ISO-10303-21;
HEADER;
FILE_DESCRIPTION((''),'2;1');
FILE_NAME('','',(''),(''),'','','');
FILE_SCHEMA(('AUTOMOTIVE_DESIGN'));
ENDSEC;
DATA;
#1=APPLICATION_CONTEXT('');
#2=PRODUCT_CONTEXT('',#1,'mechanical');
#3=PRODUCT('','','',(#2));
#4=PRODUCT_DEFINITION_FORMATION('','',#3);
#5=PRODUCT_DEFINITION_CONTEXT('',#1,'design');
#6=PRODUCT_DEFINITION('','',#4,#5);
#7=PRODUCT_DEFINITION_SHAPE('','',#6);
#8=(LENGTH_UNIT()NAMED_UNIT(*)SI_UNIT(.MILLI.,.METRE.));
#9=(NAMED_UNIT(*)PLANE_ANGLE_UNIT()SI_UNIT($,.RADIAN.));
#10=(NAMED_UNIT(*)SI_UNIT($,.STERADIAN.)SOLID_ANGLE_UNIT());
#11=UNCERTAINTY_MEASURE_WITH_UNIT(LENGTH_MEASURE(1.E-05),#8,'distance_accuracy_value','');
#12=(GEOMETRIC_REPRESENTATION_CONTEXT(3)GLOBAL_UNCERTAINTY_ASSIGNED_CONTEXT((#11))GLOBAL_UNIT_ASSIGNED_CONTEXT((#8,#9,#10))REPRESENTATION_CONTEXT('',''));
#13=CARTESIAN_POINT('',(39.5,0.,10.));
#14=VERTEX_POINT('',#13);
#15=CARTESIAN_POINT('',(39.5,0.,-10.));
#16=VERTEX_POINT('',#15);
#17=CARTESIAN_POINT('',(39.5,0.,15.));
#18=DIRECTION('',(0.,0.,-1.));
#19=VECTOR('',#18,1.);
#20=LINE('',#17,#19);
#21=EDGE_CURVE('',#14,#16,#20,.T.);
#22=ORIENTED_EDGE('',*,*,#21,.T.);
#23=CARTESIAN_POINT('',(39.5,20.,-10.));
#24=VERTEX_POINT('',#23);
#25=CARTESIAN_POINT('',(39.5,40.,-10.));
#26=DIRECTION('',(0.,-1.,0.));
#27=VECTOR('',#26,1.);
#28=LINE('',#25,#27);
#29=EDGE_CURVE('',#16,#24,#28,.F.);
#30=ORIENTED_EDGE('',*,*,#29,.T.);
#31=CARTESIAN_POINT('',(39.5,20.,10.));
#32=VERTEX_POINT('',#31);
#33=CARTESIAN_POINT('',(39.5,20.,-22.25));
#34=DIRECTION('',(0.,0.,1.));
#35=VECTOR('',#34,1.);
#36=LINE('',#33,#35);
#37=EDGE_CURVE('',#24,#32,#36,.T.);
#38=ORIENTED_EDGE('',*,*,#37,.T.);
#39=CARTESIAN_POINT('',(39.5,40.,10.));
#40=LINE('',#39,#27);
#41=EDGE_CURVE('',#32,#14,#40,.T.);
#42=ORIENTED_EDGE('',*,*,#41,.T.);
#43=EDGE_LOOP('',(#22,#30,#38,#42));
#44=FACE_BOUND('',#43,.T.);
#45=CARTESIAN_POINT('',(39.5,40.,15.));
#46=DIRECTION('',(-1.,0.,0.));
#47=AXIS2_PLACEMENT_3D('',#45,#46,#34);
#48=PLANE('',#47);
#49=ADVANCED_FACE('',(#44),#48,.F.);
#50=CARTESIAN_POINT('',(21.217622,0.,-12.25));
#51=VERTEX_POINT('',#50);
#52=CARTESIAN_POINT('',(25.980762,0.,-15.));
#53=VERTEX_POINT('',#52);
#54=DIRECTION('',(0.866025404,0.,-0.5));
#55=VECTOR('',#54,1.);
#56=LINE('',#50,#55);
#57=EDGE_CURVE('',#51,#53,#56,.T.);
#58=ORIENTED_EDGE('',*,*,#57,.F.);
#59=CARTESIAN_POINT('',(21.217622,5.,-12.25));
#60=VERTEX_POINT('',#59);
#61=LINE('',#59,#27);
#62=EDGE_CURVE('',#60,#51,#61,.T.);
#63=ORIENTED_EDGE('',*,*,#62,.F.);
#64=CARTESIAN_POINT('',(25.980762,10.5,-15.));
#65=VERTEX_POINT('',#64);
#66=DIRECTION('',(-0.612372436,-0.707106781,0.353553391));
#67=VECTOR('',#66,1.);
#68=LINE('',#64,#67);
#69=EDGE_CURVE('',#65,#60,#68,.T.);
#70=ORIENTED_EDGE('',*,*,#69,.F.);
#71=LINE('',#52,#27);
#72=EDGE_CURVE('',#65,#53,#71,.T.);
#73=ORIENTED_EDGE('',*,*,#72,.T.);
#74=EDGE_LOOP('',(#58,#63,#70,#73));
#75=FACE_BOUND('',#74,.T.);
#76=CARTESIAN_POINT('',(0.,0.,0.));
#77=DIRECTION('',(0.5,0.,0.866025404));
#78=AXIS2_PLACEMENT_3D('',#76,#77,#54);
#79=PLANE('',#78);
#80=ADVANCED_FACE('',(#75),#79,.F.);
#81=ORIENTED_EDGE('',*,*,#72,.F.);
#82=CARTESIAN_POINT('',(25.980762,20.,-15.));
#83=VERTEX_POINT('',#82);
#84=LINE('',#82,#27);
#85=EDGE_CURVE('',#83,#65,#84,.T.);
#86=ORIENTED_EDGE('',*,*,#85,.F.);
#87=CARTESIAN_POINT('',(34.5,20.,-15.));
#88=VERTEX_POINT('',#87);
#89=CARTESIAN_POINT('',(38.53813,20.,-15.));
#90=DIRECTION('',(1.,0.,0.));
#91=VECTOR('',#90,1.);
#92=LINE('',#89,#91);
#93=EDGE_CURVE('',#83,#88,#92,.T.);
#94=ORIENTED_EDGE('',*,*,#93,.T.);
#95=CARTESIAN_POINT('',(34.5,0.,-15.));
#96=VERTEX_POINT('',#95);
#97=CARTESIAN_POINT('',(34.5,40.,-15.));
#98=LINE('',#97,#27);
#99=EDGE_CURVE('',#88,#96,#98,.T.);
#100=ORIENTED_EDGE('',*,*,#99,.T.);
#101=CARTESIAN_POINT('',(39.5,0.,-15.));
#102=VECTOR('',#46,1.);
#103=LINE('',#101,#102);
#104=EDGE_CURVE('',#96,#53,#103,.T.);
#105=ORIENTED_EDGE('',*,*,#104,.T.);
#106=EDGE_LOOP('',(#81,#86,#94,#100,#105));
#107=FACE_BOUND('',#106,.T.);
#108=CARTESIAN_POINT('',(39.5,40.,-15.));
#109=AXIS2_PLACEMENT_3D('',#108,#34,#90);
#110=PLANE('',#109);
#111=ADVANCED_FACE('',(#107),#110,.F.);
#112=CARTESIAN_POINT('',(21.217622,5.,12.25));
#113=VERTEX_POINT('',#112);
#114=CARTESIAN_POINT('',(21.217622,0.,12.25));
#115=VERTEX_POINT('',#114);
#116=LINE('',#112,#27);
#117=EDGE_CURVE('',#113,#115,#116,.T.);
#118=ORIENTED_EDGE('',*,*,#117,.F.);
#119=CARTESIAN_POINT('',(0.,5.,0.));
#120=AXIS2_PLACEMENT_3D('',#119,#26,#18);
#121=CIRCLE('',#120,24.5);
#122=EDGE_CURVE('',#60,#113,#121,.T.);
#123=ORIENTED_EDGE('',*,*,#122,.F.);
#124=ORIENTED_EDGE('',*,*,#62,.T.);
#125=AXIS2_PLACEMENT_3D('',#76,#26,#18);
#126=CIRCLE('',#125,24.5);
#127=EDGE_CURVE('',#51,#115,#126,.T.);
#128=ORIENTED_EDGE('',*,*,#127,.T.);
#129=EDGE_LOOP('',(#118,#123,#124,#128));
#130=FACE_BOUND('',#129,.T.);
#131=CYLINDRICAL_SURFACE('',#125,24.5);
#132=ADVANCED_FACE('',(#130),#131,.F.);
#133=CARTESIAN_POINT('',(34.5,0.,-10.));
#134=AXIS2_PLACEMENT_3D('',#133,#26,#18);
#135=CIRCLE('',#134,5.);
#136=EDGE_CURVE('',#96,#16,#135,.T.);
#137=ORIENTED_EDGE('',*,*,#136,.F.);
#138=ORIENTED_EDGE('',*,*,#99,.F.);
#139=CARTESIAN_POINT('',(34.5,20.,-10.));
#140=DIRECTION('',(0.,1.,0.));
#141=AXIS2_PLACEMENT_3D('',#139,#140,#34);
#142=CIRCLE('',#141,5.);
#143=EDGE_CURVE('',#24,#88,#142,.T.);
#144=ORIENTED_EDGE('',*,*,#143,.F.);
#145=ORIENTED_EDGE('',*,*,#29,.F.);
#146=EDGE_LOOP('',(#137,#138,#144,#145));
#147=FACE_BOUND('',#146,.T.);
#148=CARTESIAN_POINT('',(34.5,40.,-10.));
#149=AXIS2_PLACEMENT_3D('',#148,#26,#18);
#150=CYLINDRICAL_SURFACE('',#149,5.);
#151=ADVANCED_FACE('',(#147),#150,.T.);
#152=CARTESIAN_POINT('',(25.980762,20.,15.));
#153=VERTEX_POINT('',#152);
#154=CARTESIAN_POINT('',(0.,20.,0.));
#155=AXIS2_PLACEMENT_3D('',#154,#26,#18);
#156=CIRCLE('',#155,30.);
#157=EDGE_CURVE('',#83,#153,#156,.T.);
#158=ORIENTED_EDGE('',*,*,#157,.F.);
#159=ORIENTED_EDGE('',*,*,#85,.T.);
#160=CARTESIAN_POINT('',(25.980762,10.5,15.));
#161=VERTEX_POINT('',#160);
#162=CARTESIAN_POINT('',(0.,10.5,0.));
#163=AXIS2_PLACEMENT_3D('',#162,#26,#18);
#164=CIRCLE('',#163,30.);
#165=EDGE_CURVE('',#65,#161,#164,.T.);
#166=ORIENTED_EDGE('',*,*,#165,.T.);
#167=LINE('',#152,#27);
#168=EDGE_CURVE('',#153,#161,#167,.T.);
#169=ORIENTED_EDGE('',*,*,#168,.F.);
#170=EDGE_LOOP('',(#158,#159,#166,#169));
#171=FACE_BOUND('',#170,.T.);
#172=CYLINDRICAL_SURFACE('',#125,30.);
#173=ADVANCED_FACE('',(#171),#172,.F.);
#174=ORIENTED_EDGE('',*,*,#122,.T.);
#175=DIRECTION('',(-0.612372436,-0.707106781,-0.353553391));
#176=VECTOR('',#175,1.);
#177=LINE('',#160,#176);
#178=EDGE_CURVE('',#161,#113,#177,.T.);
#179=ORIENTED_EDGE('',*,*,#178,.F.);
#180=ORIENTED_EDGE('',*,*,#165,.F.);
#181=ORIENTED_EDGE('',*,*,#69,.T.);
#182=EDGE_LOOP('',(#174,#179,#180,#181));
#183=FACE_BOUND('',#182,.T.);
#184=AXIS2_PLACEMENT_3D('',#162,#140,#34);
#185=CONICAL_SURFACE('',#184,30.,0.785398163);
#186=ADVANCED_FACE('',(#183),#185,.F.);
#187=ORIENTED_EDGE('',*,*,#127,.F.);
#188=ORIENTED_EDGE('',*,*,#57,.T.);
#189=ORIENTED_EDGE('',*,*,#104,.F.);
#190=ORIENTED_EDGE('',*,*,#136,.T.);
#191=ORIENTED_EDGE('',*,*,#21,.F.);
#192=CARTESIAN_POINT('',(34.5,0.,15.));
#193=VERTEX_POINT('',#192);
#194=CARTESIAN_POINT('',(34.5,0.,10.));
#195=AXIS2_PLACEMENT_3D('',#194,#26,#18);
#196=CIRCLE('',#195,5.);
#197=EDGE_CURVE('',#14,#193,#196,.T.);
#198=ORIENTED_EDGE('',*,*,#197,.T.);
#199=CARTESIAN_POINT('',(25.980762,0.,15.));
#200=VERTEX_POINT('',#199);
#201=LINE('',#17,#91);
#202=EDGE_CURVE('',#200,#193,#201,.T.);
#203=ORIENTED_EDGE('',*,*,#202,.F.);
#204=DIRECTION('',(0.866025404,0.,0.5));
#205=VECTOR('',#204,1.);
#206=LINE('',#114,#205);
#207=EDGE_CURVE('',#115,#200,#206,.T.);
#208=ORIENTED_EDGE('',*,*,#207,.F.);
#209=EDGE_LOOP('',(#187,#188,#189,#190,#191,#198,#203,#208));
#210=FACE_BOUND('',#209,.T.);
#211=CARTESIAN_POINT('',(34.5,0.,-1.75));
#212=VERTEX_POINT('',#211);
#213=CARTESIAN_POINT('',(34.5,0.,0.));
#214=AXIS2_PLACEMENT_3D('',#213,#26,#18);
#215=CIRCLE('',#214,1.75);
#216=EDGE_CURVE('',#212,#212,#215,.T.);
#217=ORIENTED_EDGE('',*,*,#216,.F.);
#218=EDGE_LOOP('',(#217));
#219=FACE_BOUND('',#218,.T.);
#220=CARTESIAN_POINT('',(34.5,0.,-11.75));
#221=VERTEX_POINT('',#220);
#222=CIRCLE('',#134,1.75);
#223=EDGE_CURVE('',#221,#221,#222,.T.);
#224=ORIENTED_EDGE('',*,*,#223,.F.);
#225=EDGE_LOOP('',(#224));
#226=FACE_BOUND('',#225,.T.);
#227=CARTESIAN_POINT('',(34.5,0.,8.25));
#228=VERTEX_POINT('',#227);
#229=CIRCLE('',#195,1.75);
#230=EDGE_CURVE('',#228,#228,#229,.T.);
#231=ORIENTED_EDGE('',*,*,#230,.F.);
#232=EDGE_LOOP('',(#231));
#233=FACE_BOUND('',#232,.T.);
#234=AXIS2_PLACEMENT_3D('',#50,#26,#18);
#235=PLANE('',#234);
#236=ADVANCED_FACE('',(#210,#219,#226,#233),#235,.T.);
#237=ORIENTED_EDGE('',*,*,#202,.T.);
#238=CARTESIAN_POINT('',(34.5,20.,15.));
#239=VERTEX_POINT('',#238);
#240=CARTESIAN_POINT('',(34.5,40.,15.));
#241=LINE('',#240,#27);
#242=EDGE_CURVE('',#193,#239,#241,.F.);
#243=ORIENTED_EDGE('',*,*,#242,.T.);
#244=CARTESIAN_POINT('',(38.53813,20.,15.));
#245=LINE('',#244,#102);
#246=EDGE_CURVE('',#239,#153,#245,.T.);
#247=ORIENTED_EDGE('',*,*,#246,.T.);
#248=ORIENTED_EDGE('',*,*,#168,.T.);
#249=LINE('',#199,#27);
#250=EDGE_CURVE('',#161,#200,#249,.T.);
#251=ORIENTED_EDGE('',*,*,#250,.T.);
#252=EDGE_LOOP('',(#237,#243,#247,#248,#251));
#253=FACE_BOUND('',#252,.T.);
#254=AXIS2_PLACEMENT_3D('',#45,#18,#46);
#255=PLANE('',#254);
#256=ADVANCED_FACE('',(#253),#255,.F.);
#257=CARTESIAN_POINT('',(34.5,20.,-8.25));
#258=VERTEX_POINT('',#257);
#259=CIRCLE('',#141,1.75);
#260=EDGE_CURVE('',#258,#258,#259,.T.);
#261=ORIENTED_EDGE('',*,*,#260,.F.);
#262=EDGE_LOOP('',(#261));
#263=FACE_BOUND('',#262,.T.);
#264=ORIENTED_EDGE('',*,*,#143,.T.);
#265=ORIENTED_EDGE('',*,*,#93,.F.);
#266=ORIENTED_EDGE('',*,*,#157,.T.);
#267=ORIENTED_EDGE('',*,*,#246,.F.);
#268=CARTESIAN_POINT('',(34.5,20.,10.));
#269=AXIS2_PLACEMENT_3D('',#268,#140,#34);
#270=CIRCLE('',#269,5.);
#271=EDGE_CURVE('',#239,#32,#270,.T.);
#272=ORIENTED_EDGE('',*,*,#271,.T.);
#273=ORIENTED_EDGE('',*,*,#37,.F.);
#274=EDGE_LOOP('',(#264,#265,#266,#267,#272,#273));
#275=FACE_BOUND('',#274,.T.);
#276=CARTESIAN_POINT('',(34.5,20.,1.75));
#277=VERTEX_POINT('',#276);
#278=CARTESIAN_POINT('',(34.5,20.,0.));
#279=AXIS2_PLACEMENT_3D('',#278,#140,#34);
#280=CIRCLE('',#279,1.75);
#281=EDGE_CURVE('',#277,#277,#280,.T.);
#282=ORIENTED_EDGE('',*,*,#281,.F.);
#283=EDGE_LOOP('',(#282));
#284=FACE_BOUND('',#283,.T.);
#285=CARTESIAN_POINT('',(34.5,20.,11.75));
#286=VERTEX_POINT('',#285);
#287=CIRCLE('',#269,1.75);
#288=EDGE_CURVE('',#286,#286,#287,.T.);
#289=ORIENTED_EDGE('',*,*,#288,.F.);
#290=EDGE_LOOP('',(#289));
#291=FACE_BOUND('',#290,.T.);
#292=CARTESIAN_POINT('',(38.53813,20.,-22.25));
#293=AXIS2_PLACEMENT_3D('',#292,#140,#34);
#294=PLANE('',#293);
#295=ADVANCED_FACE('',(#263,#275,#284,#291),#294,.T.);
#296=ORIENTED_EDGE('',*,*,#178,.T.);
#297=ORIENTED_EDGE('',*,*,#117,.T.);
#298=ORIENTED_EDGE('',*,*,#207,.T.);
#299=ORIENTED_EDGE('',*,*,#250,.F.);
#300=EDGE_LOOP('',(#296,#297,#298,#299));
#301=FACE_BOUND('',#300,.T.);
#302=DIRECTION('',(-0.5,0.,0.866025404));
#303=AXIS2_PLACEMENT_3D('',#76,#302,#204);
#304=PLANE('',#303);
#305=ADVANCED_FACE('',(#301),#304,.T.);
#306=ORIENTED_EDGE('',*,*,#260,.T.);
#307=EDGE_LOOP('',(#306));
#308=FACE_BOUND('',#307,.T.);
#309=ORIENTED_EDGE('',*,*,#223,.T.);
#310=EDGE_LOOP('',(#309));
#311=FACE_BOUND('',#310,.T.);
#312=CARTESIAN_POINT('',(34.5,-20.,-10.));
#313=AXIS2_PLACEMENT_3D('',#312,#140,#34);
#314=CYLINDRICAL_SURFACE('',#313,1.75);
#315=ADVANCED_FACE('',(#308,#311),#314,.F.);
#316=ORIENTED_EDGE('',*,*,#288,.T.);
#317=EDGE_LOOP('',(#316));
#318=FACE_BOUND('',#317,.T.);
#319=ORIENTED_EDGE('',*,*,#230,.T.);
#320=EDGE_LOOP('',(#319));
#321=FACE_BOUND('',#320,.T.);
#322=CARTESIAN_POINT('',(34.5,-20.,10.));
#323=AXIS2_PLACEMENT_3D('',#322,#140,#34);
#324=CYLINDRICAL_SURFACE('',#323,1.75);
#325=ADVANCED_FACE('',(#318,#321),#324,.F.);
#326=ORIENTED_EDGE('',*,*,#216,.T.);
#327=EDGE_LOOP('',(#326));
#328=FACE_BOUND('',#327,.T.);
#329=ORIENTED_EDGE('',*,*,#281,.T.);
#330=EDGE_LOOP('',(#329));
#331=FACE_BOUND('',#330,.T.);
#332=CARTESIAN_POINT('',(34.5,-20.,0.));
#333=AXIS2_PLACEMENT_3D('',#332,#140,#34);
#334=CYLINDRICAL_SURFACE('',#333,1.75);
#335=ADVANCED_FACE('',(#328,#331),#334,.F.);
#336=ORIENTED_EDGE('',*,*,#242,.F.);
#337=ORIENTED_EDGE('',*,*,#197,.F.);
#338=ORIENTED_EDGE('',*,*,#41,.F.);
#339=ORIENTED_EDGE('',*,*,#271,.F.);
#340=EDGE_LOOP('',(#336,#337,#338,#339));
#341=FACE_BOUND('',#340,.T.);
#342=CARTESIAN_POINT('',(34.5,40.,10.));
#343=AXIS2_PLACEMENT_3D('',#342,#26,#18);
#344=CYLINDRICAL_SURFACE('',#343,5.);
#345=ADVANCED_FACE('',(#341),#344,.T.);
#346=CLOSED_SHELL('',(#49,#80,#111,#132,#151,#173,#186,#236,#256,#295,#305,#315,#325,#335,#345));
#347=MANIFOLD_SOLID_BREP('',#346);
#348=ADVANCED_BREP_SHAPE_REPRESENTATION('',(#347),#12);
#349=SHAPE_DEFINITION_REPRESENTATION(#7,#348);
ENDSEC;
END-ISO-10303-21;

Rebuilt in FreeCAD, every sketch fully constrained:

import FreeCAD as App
import Part
import Sketcher

V = App.Vector
Q = App.Units.Quantity


def edges_at(feature, points):
    """Names of the edges that pass closest to the given points."""
    edges = feature.Shape.Edges
    near = lambda p: min(range(len(edges)), key=lambda i: edges[i].distToShape(Part.Vertex(*p))[0])
    return sorted({f"Edge{near(p) + 1}" for p in points})


def add_polygon(sketch, points):
    """Adds a closed chain of lines whose ends are joined by coincident constraints."""
    first, n = sketch.GeometryCount, len(points)
    for a, b in zip(points, points[1:] + points[:1]):
        sketch.addGeometry(Part.LineSegment(App.Vector(*a, 0), App.Vector(*b, 0)), False)
    for i in range(n):
        sketch.addConstraint(Sketcher.Constraint("Coincident", first + i, 2, first + (i + 1) % n, 1))

doc = App.newDocument("Part")
params = doc.addObject("Spreadsheet::Sheet", "Params")
for row, (alias, value) in enumerate([
    ("sketch1_width", "20 mm"),
    ("sketch1_height", "5 mm"),
    ("sketch1_width2", "14.5 mm"),
    ("revolution_angle", "30 deg"),
    ("sketch2_width", "20 mm"),
    ("sketch2_height", "5 mm"),
    ("sketch2_width2", "14.5 mm"),
    ("revolution2_angle", "30 deg"),
    ("sketch3_height", "30 mm"),
    ("pocket1_length", "40 mm"),
    ("fillet_radius", "5 mm"),
    ("sketch4_diameter", "3.5 mm"),
    ("pocket2_length", "40 mm"),
], start=1):
    params.set(f"A{row}", alias)
    params.set(f"B{row}", "=" + value)
    params.setAlias(f"B{row}", alias)

body = doc.addObject("PartDesign::Body", "Body")

# Sketch on XY plane
sketch1 = body.newObject("Sketcher::SketchObject", "Sketch")
sketch1.AttachmentSupport = (doc.getObject("XY_Plane"), [""])
sketch1.MapMode = "FlatFace"
add_polygon(sketch1, [(30, 20), (30, 10), (24, 5), (24, 0), (44, 0), (44, 20)])  # lines 0-5
sketch1.addConstraint([
    Sketcher.Constraint("Vertical", 0),
    Sketcher.Constraint("Vertical", 2),
    Sketcher.Constraint("Horizontal", 3),
    Sketcher.Constraint("Vertical", 4),
    Sketcher.Constraint("Horizontal", 5),
    Sketcher.Constraint("PointOnObject", 2, 2, -1),
    Sketcher.Constraint("Equal", 3, 4),
    Sketcher.Constraint("DistanceX", 3, 1, 3, 2, Q("20 mm")),
    Sketcher.Constraint("DistanceY", 2, 2, 2, 1, Q("5 mm")),
    Sketcher.Constraint("Angle", 1, Q("-135 deg")),
    Sketcher.Constraint("DistanceX", 5, 2, 5, 1, Q("14.5 mm")),
    Sketcher.Constraint("DistanceX", -1, 1, 0, 2, Q("30 mm")),
])
sketch1.setExpression("Constraints[13]", "Params.sketch1_width")
sketch1.setExpression("Constraints[14]", "Params.sketch1_height")
sketch1.setExpression("Constraints[16]", "Params.sketch1_width2")
revolution = body.newObject("PartDesign::Revolution", "Revolution")
revolution.Profile = sketch1
revolution.ReferenceAxis = (sketch1, ["V_Axis"])
revolution.setExpression("Angle", "Params.revolution_angle")

# Sketch on XY plane
sketch2 = body.newObject("Sketcher::SketchObject", "Sketch001")
sketch2.AttachmentSupport = (doc.getObject("XY_Plane"), [""])
sketch2.MapMode = "FlatFace"
add_polygon(sketch2, [(30, 20), (30, 10), (24, 5), (24, 0), (44, 0), (44, 20)])  # lines 0-5
sketch2.addConstraint([
    Sketcher.Constraint("Vertical", 0),
    Sketcher.Constraint("Vertical", 2),
    Sketcher.Constraint("Horizontal", 3),
    Sketcher.Constraint("Vertical", 4),
    Sketcher.Constraint("Horizontal", 5),
    Sketcher.Constraint("PointOnObject", 2, 2, -1),
    Sketcher.Constraint("Equal", 3, 4),
    Sketcher.Constraint("DistanceX", 3, 1, 3, 2, Q("20 mm")),
    Sketcher.Constraint("DistanceY", 2, 2, 2, 1, Q("5 mm")),
    Sketcher.Constraint("Angle", 1, Q("-135 deg")),
    Sketcher.Constraint("DistanceX", 5, 2, 5, 1, Q("14.5 mm")),
    Sketcher.Constraint("DistanceX", -1, 1, 0, 2, Q("30 mm")),
])
sketch2.setExpression("Constraints[13]", "Params.sketch2_width")
sketch2.setExpression("Constraints[14]", "Params.sketch2_height")
sketch2.setExpression("Constraints[16]", "Params.sketch2_width2")
revolution2 = body.newObject("PartDesign::Revolution", "Revolution001")
revolution2.Profile = sketch2
revolution2.ReferenceAxis = (sketch2, ["V_Axis"])
revolution2.setExpression("Angle", "Params.revolution2_angle")
revolution2.Reversed = True

# Sketch on XZ plane
sketch3 = body.newObject("Sketcher::SketchObject", "Sketch002")
sketch3.AttachmentSupport = (doc.getObject("XZ_Plane"), [""])
sketch3.MapMode = "FlatFace"
add_polygon(sketch3, [(15, 15), (15, 29), (51, 29), (51, -29), (15, -29), (15, -15), (39, -15), (40, 15)])  # lines 0-7
sketch3.addConstraint([
    Sketcher.Constraint("Vertical", 0),
    Sketcher.Constraint("Horizontal", 1),
    Sketcher.Constraint("Vertical", 2),
    Sketcher.Constraint("Horizontal", 3),
    Sketcher.Constraint("Vertical", 4),
    Sketcher.Constraint("Horizontal", 5),
    Sketcher.Constraint("Vertical", 6),
    Sketcher.Constraint("Horizontal", 7),
    Sketcher.Constraint("Symmetric", 0, 2, 3, 2, -1),
    Sketcher.Constraint("Equal", 0, 4),
    Sketcher.Constraint("DistanceY", 6, 1, 6, 2, Q("30 mm")),
    Sketcher.Constraint("DistanceX", -1, 1, 5, 2, Q("39.5 mm")),
    Sketcher.Constraint("DistanceX", 1, 1, 1, 2, Q("36.094 mm")),
    Sketcher.Constraint("DistanceX", 5, 1, 5, 2, Q("24.688 mm")),
    Sketcher.Constraint("DistanceY", 0, 1, 0, 2, Q("13.656 mm")),
])
sketch3.setExpression("Constraints[18]", "Params.sketch3_height")
pocket1 = body.newObject("PartDesign::Pocket", "Pocket")
pocket1.Profile = sketch3
pocket1.setExpression("Length", "Params.pocket1_length")
doc.recompute()

fillet = body.newObject("PartDesign::Fillet", "Fillet")
fillet.Base = (pocket1, edges_at(pocket1, [(39.5, 10, -15), (39.5, 10, 15)]))
fillet.setExpression("Radius", "Params.fillet_radius")

# Sketch on XZ plane
sketch4 = body.newObject("Sketcher::SketchObject", "Sketch003")
sketch4.AttachmentSupport = (doc.getObject("XZ_Plane"), [""])
sketch4.MapMode = "FlatFace"
sketch4.AttachmentOffset = App.Placement(V(0, 0, -20), App.Rotation())
sketch4.addGeometry([
    Part.Circle(V(34.5, 10, 0), V(0, 0, 1), 1.8),
    Part.Circle(V(34.5, -10, 0), V(0, 0, 1), 1.8),
    Part.Circle(V(34.5, 0, 0), V(0, 0, 1), 1.8),
], False)
sketch4.addConstraint([
    Sketcher.Constraint("Equal", 0, 1),
    Sketcher.Constraint("Equal", 1, 2),
    Sketcher.Constraint("Symmetric", 0, 3, 1, 3, -1),
    Sketcher.Constraint("PointOnObject", 2, 3, -1),
    Sketcher.Constraint("Vertical", 1, 3, 2, 3),
    Sketcher.Constraint("Diameter", 0, Q("3.5 mm")),
    Sketcher.Constraint("DistanceY", -1, 1, 0, 3, Q("10 mm")),
    Sketcher.Constraint("DistanceX", -1, 1, 0, 3, Q("34.5 mm")),
])
sketch4.setExpression("Constraints[5]", "Params.sketch4_diameter")
pocket2 = body.newObject("PartDesign::Pocket", "Pocket001")
pocket2.Profile = sketch4
pocket2.setExpression("Length", "Params.pocket2_length")
pocket2.Reversed = True

doc.recompute()
